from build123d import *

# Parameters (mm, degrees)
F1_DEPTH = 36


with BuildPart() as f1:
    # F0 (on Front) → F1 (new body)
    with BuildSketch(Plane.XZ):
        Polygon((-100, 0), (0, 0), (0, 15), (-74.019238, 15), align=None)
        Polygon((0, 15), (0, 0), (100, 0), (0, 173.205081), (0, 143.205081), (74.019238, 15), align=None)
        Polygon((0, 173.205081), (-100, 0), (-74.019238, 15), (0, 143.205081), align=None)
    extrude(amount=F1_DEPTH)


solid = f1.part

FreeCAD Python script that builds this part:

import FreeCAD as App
import Part
import Sketcher
Q = App.Units.Quantity

doc = App.newDocument("Part")
body = doc.addObject("PartDesign::Body", "Body")

# Sketch on XZ plane
sketch1 = body.newObject("Sketcher::SketchObject", "Sketch")
sketch1.AttachmentSupport = (doc.getObject("XZ_Plane"), [""])
sketch1.MapMode = "FlatFace"
sketch1.addGeometry([
    Part.LineSegment(App.Vector(-100, 0, 0), App.Vector(100, 0, 0)),  # 0
    Part.LineSegment(App.Vector(100, 0, 0), App.Vector(0, 173.205081, 0)),  # 1
    Part.LineSegment(App.Vector(0, 173.205081, 0), App.Vector(-100, 0, 0)),  # 2
    Part.LineSegment(App.Vector(0, 143.205081, 0), App.Vector(74.019238, 15, 0)),  # 3
    Part.LineSegment(App.Vector(74.019238, 15, 0), App.Vector(-74.019238, 15, 0)),  # 4
    Part.LineSegment(App.Vector(-74.019238, 15, 0), App.Vector(0, 143.205081, 0)),  # 5
], False)
sketch1.addConstraint([
    Sketcher.Constraint("Coincident", 0, 2, 1, 1),
    Sketcher.Constraint("Coincident", 1, 2, 2, 1),
    Sketcher.Constraint("Coincident", 2, 2, 0, 1),
    Sketcher.Constraint("Coincident", 3, 2, 4, 1),
    Sketcher.Constraint("Coincident", 4, 2, 5, 1),
    Sketcher.Constraint("Coincident", 5, 2, 3, 1),
    Sketcher.Constraint("Horizontal", 0),
    Sketcher.Constraint("Horizontal", 4),
    Sketcher.Constraint("Symmetric", 0, 2, 2, 2, -1, 1),
    Sketcher.Constraint("PointOnObject", 1, 2, -2),
    Sketcher.Constraint("PointOnObject", 5, 2, -2),
    Sketcher.Constraint("Parallel", 1, 3),
    Sketcher.Constraint("Parallel", 2, 5),
    Sketcher.Constraint("DistanceX", 0, 1, 0, 2, 200.0),
    Sketcher.Constraint("Angle", 1, Q("120 deg")),
    Sketcher.Constraint("DistanceY", -1, 1, 3, 2, 15.0),
    Sketcher.Constraint("DistanceY", 5, 2, 1, 2, 30.0),
])
pad1 = body.newObject("PartDesign::Pad", "Pad")
pad1.Profile = sketch1
pad1.Length = 36

doc.recompute()
